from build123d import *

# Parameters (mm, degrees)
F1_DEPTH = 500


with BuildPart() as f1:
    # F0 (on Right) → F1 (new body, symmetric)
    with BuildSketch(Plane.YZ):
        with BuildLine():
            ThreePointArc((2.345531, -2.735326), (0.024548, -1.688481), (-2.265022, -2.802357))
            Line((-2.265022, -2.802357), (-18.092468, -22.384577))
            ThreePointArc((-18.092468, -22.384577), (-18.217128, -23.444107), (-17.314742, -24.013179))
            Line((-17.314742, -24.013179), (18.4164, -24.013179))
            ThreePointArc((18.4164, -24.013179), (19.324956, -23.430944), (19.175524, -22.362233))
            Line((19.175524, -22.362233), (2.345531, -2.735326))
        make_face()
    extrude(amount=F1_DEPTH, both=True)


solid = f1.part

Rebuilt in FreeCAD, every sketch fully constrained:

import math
import FreeCAD as App
import Part
import Sketcher
from FreeCAD import Vector
Q = App.Units.Quantity

doc = App.newDocument("Part")
body = doc.addObject("PartDesign::Body", "Body")

sketch1 = body.newObject("Sketcher::SketchObject", "Sketch")
sketch1.AttachmentSupport = (doc.getObject("YZ_Plane"), [""])
sketch1.MapMode = "FlatFace"
sketch1.addGeometry([
    Part.ArcOfCircle(Part.Circle(Vector(0.068159, -4.688164, 0), Vector(0, 0, 1), 3), math.radians(40.612966), math.radians(141.052917)),
    Part.LineSegment(Vector(-2.265022, -2.802357, 0), Vector(-18.092468, -22.384577, 0)),
    Part.ArcOfCircle(Part.Circle(Vector(-17.314742, -23.01318, 0), Vector(0, 0, 1), 0.999999), math.radians(141.052875), math.radians(270.000003)),
    Part.LineSegment(Vector(-17.314742, -24.013179, 0), Vector(18.4164, -24.013179, 0)),
    Part.ArcOfCircle(Part.Circle(Vector(18.416401, -23.01318, 0), Vector(0, 0, 1), 0.999999), math.radians(-90.000072), math.radians(40.613039)),
    Part.LineSegment(Vector(19.175524, -22.362233, 0), Vector(2.345531, -2.735326, 0)),
], False)
sketch1.addConstraint([
    Sketcher.Constraint("Coincident", 0, 2, 1, 1),
    Sketcher.Constraint("Coincident", 1, 2, 2, 1),
    Sketcher.Constraint("Coincident", 2, 2, 3, 1),
    Sketcher.Constraint("Coincident", 3, 2, 4, 1),
    Sketcher.Constraint("Coincident", 4, 2, 5, 1),
    Sketcher.Constraint("Coincident", 5, 2, 0, 1),
    Sketcher.Constraint("Horizontal", 3),
    Sketcher.Constraint("Radius", 0, Q("3 mm")),
    Sketcher.Constraint("Radius", 2, Q("0.999999 mm")),
    Sketcher.Constraint("Radius", 4, Q("0.999999 mm")),
    Sketcher.Constraint("DistanceX", 3, 1, 3, 2, Q("35.731142 mm")),
    Sketcher.Constraint("DistanceX", -1, 1, 4, 3, Q("18.416401 mm")),
    Sketcher.Constraint("DistanceX", -1, 1, 3, 2, Q("18.4164 mm")),
    Sketcher.Constraint("DistanceX", 2, 3, 0, 3, Q("17.382901 mm")),
    Sketcher.Constraint("DistanceY", 2, 2, 1, 2, Q("1.628602 mm")),
    Sketcher.Constraint("DistanceX", 2, 2, 0, 3, Q("17.382901 mm")),
    Sketcher.Constraint("Distance", 1, Q("25.178788 mm")),
    Sketcher.Constraint("DistanceY", 2, 3, -1, 1, Q("23.01318 mm")),
    Sketcher.Constraint("DistanceX", 0, 2, -1, 1, Q("2.265022 mm")),
    Sketcher.Constraint("DistanceX", -1, 1, 5, 2, Q("2.345531 mm")),
    Sketcher.Constraint("DistanceY", 4, 2, 0, 3, Q("17.674069 mm")),
])
pad1 = body.newObject("PartDesign::Pad", "Pad")
pad1.Profile = sketch1
pad1.Length = 1000
pad1.Midplane = True

doc.recompute()
